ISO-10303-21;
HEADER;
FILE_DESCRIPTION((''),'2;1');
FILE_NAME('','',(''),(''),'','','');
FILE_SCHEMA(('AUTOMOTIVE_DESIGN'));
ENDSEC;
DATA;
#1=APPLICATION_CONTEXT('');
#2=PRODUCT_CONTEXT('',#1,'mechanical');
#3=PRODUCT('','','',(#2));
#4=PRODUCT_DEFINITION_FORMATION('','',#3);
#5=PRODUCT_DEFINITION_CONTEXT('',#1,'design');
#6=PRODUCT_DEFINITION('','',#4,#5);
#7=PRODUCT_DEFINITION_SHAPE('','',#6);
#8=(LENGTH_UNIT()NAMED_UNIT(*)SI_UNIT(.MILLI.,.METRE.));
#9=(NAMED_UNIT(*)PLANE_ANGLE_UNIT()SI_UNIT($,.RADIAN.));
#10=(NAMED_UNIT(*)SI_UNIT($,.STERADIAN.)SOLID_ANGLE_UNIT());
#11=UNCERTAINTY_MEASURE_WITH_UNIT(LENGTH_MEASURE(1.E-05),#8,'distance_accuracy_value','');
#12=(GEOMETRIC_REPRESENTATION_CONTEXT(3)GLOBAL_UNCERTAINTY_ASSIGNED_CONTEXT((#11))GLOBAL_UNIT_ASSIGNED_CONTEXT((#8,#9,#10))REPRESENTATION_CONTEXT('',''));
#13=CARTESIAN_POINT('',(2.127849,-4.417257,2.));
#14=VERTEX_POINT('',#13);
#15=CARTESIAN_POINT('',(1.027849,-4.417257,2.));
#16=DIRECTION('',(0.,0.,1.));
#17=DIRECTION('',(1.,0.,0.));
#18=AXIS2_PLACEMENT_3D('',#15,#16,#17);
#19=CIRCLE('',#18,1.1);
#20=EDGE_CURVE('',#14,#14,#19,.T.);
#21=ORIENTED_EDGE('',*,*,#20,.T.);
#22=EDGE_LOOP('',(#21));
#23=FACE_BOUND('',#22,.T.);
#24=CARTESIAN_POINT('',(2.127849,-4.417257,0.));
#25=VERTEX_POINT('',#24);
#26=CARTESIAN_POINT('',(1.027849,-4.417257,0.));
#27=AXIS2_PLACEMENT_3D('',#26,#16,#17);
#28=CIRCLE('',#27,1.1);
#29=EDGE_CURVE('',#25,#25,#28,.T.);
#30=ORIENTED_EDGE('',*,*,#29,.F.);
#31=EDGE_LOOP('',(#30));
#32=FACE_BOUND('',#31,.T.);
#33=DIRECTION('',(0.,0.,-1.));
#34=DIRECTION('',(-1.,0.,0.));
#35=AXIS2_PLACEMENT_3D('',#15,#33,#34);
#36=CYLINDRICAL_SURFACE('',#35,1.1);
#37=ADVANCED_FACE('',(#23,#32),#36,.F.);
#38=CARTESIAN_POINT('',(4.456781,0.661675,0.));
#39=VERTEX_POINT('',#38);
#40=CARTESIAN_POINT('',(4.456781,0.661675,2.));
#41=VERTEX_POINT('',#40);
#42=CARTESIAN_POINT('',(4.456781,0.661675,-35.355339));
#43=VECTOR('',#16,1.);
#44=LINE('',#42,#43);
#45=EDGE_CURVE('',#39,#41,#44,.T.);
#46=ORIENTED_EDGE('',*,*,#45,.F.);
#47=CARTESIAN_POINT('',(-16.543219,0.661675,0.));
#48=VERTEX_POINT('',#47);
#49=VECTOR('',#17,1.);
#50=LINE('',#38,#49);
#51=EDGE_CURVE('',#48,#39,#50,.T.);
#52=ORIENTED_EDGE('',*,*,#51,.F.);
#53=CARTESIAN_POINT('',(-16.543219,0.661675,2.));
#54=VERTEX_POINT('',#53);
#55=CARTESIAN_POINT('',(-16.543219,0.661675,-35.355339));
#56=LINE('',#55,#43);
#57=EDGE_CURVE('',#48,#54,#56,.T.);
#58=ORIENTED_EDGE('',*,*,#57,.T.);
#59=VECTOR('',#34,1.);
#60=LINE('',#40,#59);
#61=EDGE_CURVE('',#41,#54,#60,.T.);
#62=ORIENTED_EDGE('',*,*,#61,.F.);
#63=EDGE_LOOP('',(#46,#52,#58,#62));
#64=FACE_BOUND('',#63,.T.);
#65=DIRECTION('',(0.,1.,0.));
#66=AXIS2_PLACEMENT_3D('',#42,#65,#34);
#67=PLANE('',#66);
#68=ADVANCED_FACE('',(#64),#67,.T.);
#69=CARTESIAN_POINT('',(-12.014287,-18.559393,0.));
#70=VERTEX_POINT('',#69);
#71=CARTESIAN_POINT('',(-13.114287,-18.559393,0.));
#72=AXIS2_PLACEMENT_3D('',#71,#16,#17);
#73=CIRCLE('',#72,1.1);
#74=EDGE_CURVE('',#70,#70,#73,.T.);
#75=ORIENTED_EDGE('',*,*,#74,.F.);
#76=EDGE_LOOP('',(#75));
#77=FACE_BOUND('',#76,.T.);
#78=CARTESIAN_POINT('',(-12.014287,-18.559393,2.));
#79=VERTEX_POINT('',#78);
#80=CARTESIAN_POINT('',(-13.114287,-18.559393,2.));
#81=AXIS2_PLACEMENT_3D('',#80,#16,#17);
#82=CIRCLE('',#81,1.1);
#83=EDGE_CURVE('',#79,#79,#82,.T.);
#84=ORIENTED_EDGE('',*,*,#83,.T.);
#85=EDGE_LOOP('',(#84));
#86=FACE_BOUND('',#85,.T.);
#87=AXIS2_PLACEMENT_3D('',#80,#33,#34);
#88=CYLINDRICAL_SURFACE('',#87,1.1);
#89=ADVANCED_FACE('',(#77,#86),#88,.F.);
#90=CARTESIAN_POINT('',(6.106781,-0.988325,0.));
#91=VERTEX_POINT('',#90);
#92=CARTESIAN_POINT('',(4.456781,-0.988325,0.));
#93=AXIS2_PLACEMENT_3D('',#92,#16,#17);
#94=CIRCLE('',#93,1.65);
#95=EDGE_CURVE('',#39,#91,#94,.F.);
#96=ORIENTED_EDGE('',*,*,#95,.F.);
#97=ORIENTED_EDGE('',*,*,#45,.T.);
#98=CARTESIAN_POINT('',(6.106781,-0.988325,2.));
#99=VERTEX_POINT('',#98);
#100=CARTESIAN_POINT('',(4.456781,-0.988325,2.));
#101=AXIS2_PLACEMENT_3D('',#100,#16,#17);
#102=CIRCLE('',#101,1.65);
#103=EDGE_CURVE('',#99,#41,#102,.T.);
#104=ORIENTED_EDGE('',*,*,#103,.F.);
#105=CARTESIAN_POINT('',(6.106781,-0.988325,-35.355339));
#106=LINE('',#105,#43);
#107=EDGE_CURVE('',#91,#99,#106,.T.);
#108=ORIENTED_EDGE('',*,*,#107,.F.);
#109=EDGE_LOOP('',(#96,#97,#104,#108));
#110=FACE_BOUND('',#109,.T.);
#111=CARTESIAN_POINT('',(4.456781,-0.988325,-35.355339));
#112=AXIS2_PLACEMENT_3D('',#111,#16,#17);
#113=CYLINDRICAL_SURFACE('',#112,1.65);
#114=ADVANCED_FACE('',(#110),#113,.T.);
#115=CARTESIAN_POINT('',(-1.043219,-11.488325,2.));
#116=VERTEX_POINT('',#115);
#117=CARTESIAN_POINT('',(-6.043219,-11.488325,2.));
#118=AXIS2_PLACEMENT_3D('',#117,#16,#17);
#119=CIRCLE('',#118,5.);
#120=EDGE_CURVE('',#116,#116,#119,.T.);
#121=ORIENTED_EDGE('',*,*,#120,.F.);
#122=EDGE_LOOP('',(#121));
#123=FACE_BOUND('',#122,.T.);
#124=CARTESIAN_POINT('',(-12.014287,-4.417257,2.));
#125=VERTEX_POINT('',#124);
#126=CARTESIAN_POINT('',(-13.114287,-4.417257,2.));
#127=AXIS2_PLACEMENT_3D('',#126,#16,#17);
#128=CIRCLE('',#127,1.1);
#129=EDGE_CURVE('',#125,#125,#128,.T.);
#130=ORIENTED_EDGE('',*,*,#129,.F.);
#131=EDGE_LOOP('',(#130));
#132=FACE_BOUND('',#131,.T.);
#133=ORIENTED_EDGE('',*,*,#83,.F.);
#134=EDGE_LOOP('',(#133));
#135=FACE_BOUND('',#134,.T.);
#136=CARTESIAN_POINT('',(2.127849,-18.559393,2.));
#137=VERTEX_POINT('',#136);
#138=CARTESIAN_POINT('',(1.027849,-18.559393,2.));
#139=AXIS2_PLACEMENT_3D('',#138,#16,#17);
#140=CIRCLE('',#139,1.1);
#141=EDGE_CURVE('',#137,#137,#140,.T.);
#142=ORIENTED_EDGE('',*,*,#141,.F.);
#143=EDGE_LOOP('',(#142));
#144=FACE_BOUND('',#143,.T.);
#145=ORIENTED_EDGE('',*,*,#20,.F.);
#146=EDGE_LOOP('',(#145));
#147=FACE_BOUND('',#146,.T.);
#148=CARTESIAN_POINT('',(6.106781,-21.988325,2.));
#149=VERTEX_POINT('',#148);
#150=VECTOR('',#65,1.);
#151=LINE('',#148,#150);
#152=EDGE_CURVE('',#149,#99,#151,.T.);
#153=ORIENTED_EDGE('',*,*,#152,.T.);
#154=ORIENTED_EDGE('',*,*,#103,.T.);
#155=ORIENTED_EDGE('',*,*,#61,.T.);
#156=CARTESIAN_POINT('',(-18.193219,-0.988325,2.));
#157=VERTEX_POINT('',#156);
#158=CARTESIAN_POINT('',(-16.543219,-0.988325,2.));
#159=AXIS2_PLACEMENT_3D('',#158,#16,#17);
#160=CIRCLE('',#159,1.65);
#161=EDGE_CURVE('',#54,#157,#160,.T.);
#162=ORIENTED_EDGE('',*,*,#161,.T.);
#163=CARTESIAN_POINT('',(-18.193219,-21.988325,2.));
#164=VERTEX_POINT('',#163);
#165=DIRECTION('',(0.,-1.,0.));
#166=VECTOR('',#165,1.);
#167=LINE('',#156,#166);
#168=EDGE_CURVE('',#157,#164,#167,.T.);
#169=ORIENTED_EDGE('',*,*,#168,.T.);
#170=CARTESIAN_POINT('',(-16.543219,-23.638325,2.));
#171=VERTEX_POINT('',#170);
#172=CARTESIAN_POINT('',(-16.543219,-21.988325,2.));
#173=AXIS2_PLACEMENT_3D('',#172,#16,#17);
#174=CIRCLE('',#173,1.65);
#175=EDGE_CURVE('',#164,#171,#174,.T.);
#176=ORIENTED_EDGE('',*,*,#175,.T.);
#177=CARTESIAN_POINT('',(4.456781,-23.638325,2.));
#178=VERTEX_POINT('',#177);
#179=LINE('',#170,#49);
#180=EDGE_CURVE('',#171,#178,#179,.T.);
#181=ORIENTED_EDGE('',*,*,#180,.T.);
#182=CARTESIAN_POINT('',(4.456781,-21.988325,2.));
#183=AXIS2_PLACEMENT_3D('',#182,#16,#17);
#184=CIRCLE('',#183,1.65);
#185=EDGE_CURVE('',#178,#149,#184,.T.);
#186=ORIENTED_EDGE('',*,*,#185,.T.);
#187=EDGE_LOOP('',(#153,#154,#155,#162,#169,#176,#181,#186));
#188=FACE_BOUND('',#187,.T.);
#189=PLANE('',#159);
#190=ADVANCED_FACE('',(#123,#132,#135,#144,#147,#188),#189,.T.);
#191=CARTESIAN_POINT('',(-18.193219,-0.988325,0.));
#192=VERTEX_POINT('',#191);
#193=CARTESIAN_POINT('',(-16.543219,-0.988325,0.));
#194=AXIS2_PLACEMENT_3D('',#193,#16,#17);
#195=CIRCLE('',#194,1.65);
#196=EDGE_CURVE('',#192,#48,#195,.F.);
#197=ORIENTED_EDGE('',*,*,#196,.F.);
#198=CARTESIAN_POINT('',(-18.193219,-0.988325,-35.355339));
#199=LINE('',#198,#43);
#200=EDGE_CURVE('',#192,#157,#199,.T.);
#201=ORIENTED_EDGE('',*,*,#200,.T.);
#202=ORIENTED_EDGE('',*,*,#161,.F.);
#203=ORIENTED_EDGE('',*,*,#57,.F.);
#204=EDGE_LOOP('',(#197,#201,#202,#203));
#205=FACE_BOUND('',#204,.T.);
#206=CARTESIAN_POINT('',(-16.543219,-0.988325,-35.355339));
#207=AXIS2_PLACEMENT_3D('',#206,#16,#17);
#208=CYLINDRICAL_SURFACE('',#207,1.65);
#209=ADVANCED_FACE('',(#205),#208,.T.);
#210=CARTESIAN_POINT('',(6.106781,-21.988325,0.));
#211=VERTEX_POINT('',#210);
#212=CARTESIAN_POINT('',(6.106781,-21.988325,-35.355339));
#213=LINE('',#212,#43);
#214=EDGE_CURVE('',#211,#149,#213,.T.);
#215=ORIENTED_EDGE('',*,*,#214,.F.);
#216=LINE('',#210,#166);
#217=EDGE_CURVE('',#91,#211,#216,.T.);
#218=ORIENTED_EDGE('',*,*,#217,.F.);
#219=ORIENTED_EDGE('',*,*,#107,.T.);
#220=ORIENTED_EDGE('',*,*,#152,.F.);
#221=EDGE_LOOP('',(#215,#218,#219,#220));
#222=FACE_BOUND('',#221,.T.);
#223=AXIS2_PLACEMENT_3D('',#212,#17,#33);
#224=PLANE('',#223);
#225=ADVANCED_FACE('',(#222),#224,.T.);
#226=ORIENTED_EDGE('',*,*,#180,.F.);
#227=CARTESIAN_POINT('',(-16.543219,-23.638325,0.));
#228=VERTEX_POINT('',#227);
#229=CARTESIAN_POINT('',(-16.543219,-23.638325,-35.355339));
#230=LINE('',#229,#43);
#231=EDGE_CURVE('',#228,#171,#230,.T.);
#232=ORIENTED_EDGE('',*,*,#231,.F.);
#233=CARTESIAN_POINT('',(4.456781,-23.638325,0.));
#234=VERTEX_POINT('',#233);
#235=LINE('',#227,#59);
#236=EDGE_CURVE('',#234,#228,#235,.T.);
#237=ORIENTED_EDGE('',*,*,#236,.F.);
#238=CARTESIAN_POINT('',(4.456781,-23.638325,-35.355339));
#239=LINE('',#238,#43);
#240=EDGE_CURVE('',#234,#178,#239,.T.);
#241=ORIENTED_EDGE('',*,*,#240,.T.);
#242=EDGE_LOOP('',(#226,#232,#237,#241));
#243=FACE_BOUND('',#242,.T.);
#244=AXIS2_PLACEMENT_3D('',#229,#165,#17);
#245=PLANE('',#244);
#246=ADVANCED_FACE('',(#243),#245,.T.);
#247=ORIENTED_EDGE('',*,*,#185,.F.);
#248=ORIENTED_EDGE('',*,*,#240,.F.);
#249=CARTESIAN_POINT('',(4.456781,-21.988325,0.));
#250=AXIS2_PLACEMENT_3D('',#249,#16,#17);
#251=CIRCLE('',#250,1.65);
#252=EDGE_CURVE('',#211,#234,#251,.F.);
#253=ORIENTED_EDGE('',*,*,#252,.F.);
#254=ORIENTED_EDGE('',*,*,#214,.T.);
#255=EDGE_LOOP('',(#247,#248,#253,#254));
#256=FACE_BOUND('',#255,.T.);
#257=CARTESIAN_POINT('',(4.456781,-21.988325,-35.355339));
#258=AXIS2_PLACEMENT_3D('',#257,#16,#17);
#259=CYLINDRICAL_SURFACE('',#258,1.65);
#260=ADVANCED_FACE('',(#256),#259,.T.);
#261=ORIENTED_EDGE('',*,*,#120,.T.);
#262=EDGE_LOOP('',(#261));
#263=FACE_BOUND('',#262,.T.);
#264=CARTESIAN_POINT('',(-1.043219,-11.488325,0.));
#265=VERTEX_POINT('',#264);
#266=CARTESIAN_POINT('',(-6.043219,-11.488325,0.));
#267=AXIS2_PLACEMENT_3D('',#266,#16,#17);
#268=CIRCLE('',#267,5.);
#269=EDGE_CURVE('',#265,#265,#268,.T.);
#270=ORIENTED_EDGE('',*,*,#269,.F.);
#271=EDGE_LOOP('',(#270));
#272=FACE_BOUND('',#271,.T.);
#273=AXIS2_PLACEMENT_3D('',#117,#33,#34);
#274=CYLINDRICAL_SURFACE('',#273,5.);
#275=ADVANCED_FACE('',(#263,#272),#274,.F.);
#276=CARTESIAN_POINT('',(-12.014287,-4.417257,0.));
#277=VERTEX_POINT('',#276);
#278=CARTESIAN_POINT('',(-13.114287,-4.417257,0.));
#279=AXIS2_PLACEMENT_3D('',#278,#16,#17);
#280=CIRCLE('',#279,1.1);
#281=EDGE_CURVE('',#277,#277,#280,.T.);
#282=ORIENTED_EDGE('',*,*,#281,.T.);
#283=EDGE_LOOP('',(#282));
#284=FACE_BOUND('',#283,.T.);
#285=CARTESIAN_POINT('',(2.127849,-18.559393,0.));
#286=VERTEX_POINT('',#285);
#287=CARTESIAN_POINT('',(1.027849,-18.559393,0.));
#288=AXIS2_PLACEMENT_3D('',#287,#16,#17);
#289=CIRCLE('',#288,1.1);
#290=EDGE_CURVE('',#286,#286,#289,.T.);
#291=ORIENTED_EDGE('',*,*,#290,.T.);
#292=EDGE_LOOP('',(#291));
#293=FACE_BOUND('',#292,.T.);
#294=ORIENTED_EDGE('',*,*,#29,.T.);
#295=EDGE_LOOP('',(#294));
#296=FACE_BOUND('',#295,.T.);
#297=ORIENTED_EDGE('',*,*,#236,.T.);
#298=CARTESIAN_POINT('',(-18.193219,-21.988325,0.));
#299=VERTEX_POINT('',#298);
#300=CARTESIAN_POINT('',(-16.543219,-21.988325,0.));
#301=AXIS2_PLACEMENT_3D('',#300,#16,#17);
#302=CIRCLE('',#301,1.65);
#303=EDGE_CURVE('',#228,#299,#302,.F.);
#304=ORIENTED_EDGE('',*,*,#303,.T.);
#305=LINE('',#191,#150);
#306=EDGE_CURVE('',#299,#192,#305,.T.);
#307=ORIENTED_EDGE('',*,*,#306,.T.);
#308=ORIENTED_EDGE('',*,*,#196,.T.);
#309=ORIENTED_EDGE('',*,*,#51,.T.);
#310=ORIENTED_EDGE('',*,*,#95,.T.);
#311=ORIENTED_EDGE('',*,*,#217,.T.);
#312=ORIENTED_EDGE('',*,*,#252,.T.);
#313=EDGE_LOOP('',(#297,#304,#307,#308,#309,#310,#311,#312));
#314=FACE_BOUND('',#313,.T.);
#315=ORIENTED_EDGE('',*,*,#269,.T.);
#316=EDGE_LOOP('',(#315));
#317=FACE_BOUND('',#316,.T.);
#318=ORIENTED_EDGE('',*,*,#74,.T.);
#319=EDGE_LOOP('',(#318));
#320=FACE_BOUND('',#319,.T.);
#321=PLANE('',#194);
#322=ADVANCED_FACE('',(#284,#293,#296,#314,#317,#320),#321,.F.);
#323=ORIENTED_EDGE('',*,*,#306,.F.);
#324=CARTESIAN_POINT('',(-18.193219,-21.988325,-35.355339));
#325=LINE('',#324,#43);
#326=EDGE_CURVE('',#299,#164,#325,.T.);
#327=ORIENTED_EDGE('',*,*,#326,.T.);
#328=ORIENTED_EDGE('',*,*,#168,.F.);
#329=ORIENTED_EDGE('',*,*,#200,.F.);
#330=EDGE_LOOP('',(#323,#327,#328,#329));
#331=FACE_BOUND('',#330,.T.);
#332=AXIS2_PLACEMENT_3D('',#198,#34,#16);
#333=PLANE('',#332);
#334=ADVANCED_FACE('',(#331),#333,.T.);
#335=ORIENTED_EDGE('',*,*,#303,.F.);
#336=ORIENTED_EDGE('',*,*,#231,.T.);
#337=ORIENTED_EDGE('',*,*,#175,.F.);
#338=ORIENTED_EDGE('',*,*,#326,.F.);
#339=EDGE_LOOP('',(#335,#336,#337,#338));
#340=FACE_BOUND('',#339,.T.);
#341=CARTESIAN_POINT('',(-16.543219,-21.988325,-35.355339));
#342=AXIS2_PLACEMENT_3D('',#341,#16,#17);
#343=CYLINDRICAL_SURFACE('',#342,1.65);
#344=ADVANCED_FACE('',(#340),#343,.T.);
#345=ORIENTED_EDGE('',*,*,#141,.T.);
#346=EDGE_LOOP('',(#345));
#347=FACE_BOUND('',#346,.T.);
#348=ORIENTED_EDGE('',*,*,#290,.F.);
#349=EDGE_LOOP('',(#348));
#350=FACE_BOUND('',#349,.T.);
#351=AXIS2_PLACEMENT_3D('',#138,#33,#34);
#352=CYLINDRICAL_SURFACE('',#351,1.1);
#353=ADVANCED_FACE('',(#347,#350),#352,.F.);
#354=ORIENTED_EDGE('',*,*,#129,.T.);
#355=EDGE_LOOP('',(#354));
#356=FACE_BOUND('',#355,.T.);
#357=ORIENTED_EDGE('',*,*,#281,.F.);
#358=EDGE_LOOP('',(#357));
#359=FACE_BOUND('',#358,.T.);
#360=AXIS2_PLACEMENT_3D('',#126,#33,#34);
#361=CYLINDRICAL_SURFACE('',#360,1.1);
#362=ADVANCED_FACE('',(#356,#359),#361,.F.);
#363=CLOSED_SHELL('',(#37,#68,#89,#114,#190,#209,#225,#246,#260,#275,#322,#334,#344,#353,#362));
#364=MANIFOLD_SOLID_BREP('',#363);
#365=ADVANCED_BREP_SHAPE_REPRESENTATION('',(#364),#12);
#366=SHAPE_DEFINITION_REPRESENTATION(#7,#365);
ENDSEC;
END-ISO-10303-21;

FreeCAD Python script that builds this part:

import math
import FreeCAD as App
import Part
import Sketcher

V = App.Vector

doc = App.newDocument("Part")
body = doc.addObject("PartDesign::Body", "Body")

sketch1 = body.newObject("Sketcher::SketchObject", "Sketch")
sketch1.AttachmentSupport = (doc.getObject("XY_Plane"), [""])
sketch1.MapMode = "FlatFace"
sketch1.addGeometry([
    Part.LineSegment(V(-18.543219, -0.988325, 0), V(-18.543219, -21.988325, 0)),
    Part.ArcOfCircle(Part.Circle(V(-16.543219, -21.988325, 0), V(0, 0, 1), 2), math.radians(-180), math.radians(-90)),
    Part.LineSegment(V(-16.543219, -23.988325, 0), V(4.456781, -23.988325, 0)),
    Part.ArcOfCircle(Part.Circle(V(4.456781, -21.988325, 0), V(0, 0, 1), 2), math.radians(-90), math.radians(0)),
    Part.LineSegment(V(6.456781, -21.988325, 0), V(6.456781, -0.988325, 0)),
    Part.ArcOfCircle(Part.Circle(V(4.456781, -0.988325, 0), V(0, 0, 1), 2), math.radians(0), math.radians(90)),
    Part.LineSegment(V(4.456781, 1.011675, 0), V(-16.543219, 1.011675, 0)),
    Part.ArcOfCircle(Part.Circle(V(-16.543219, -0.988325, 0), V(0, 0, 1), 2), math.radians(90), math.radians(180)),
    Part.Circle(V(-13.114287, -18.559393, 0), V(0, 0, 1), 1.1),
    Part.Circle(V(-6.043219, -11.488325, 0), V(0, 0, 1), 5),
    Part.Circle(V(1.027849, -18.559393, 0), V(0, 0, 1), 1.1),
    Part.Circle(V(-13.114287, -4.417257, 0), V(0, 0, 1), 1.1),
    Part.Circle(V(1.027849, -4.417257, 0), V(0, 0, 1), 1.1),
], False)
sketch1.addConstraint([
    Sketcher.Constraint("Tangent", 0, 2, 1, 1),
    Sketcher.Constraint("Tangent", 1, 2, 2, 1),
    Sketcher.Constraint("Tangent", 2, 2, 3, 1),
    Sketcher.Constraint("Tangent", 3, 2, 4, 1),
    Sketcher.Constraint("Tangent", 4, 2, 5, 1),
    Sketcher.Constraint("Tangent", 5, 2, 6, 1),
    Sketcher.Constraint("Tangent", 6, 2, 7, 1),
    Sketcher.Constraint("Tangent", 7, 2, 0, 1),
    Sketcher.Constraint("Vertical", 0),
    Sketcher.Constraint("Horizontal", 2),
    Sketcher.Constraint("Vertical", 4),
    Sketcher.Constraint("Horizontal", 6),
    Sketcher.Constraint("Equal", 1, 3),
    Sketcher.Constraint("Equal", 3, 5),
    Sketcher.Constraint("Equal", 5, 7),
    Sketcher.Constraint("Equal", 8, 10),
    Sketcher.Constraint("Equal", 10, 11),
    Sketcher.Constraint("Equal", 11, 12),
    Sketcher.Constraint("Horizontal", 8, 3, 10, 3),
    Sketcher.Constraint("Horizontal", 11, 3, 12, 3),
    Sketcher.Constraint("Vertical", 8, 3, 11, 3),
    Sketcher.Constraint("Vertical", 10, 3, 12, 3),
    Sketcher.Constraint("Equal", 6, 0),
    Sketcher.Constraint("Diameter", 9, 10.0),
    Sketcher.Constraint("Radius", 1, 2.0),
    Sketcher.Constraint("Diameter", 8, 2.2),
    Sketcher.Constraint("DistanceX", 2, 1, 2, 2, 21.0),
    Sketcher.Constraint("DistanceX", 1, 3, 9, 3, 10.5),
    Sketcher.Constraint("DistanceY", 1, 3, 9, 3, 10.5),
    Sketcher.Constraint("DistanceX", 1, 3, -1, 1, 16.543219),
    Sketcher.Constraint("DistanceX", -1, 1, 10, 3, 1.027849),
    Sketcher.Constraint("DistanceY", 1, 3, -1, 1, 21.988325),
    Sketcher.Constraint("DistanceX", 8, 3, -1, 1, 13.114287),
    Sketcher.Constraint("DistanceY", 8, 3, -1, 1, 18.559393),
    Sketcher.Constraint("DistanceY", 11, 3, -1, 1, 4.417257),
])
pad1 = body.newObject("PartDesign::Pad", "Pad")
pad1.Profile = sketch1
pad1.Length = 2

sketch2 = body.newObject("Sketcher::SketchObject", "Sketch001")
sketch2.AttachmentSupport = (doc.getObject("XY_Plane"), [""])
sketch2.MapMode = "FlatFace"
sketch2.addGeometry([
    Part.LineSegment(V(4.456781, 1.011675, 0), V(-16.543219, 1.011675, 0)),
    Part.ArcOfCircle(Part.Circle(V(-16.543219, -0.988325, 0), V(0, 0, 1), 2), math.radians(90), math.radians(180)),
    Part.LineSegment(V(-18.543219, -0.988325, 0), V(-18.543219, -21.988325, 0)),
    Part.ArcOfCircle(Part.Circle(V(-16.543219, -21.988325, 0), V(0, 0, 1), 2), math.radians(-180), math.radians(-90)),
    Part.LineSegment(V(-16.543219, -23.988325, 0), V(4.456781, -23.988325, 0)),
    Part.ArcOfCircle(Part.Circle(V(4.456781, -21.988325, 0), V(0, 0, 1), 2), math.radians(-90), math.radians(0)),
    Part.LineSegment(V(6.456781, -21.988325, 0), V(6.456781, -0.988325, 0)),
    Part.ArcOfCircle(Part.Circle(V(4.456781, -0.988325, 0), V(0, 0, 1), 2), math.radians(0), math.radians(90)),
    Part.LineSegment(V(-18.193219, -21.988325, 0), V(-18.193219, -0.988325, 0)),
    Part.ArcOfCircle(Part.Circle(V(-16.543219, -0.988325, 0), V(0, 0, 1), 1.65), math.radians(90), math.radians(180)),
    Part.LineSegment(V(-16.543219, 0.661675, 0), V(4.456781, 0.661675, 0)),
    Part.ArcOfCircle(Part.Circle(V(4.456781, -0.988325, 0), V(0, 0, 1), 1.65), math.radians(0), math.radians(90)),
    Part.LineSegment(V(6.106781, -0.988325, 0), V(6.106781, -21.988325, 0)),
    Part.ArcOfCircle(Part.Circle(V(4.456781, -21.988325, 0), V(0, 0, 1), 1.65), math.radians(-90), math.radians(0)),
    Part.LineSegment(V(4.456781, -23.638325, 0), V(-16.543219, -23.638325, 0)),
    Part.ArcOfCircle(Part.Circle(V(-16.543219, -21.988325, 0), V(0, 0, 1), 1.65), math.radians(180), math.radians(270)),
], False)
sketch2.addConstraint([
    Sketcher.Constraint("Tangent", 0, 2, 1, 1),
    Sketcher.Constraint("Tangent", 1, 2, 2, 1),
    Sketcher.Constraint("Tangent", 2, 2, 3, 1),
    Sketcher.Constraint("Tangent", 3, 2, 4, 1),
    Sketcher.Constraint("Tangent", 4, 2, 5, 1),
    Sketcher.Constraint("Tangent", 5, 2, 6, 1),
    Sketcher.Constraint("Tangent", 6, 2, 7, 1),
    Sketcher.Constraint("Tangent", 7, 2, 0, 1),
    Sketcher.Constraint("Tangent", 8, 2, 9, 2),
    Sketcher.Constraint("Tangent", 9, 1, 10, 1),
    Sketcher.Constraint("Tangent", 10, 2, 11, 2),
    Sketcher.Constraint("Tangent", 11, 1, 12, 1),
    Sketcher.Constraint("Tangent", 12, 2, 13, 2),
    Sketcher.Constraint("Tangent", 13, 1, 14, 1),
    Sketcher.Constraint("Tangent", 14, 2, 15, 2),
    Sketcher.Constraint("Tangent", 15, 1, 8, 1),
    Sketcher.Constraint("Horizontal", 0),
    Sketcher.Constraint("Vertical", 2),
    Sketcher.Constraint("Horizontal", 4),
    Sketcher.Constraint("Vertical", 6),
    Sketcher.Constraint("Vertical", 8),
    Sketcher.Constraint("Horizontal", 10),
    Sketcher.Constraint("Vertical", 12),
    Sketcher.Constraint("Horizontal", 14),
    Sketcher.Constraint("Coincident", 9, 3, 1, 3),
    Sketcher.Constraint("Coincident", 11, 3, 7, 3),
    Sketcher.Constraint("Coincident", 13, 3, 5, 3),
    Sketcher.Constraint("Equal", 1, 3),
    Sketcher.Constraint("Equal", 3, 5),
    Sketcher.Constraint("Equal", 5, 7),
    Sketcher.Constraint("Equal", 13, 15),
    Sketcher.Constraint("Equal", 14, 2),
    Sketcher.Constraint("Radius", 1, 2.0),
    Sketcher.Constraint("DistanceX", 0, 2, 0, 1, 21.0),
    Sketcher.Constraint("Radius", 9, 1.65),
    Sketcher.Constraint("DistanceX", 1, 3, -1, 1, 16.543219),
    Sketcher.Constraint("DistanceY", 1, 3, -1, 1, 0.988325),
])
pocket1 = body.newObject("PartDesign::Pocket", "Pocket")
pocket1.Profile = sketch2
pocket1.Length = 2
pocket1.Reversed = True

doc.recompute()
